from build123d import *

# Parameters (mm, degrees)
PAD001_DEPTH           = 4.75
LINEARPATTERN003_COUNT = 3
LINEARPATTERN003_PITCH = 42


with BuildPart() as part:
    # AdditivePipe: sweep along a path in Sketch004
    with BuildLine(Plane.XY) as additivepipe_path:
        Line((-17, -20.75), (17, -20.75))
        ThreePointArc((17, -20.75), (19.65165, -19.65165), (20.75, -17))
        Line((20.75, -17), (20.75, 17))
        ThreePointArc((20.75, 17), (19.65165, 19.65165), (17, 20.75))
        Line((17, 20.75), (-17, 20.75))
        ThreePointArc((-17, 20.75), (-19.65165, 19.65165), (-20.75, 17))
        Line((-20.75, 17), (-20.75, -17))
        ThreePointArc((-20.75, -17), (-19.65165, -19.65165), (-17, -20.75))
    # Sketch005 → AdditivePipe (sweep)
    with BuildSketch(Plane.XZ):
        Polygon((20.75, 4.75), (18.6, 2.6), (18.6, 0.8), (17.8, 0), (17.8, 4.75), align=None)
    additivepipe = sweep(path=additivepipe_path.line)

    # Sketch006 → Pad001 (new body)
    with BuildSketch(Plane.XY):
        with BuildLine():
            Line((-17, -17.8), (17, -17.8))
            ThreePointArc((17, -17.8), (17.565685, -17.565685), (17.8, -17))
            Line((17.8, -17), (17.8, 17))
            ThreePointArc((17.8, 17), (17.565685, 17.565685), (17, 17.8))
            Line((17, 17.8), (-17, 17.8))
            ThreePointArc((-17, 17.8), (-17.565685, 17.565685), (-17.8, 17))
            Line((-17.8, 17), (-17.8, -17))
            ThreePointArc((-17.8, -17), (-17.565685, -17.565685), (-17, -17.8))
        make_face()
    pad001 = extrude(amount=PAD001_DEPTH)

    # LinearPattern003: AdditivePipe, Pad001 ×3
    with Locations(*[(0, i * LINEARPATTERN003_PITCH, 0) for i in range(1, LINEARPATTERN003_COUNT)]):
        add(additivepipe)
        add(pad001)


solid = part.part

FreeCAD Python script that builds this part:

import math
import FreeCAD as App
import Part
import Sketcher
Q = App.Units.Quantity

doc = App.newDocument("Part")
body = doc.addObject("PartDesign::Body", "Body")
body.AllowCompound = True

# Sketch on XZ plane
sketch1 = body.newObject("Sketcher::SketchObject", "Sketch")
sketch1.AttachmentSupport = (doc.getObject("XZ_Plane"), [""])
sketch1.MapMode = "FlatFace"
sketch1.addGeometry([
    Part.LineSegment(App.Vector(18.6, 2.6, 0), App.Vector(20.8, 4.8, 0)),  # 0
    Part.LineSegment(App.Vector(20.8, 4.8, 0), App.Vector(17.8, 4.8, 0)),  # 1
    Part.LineSegment(App.Vector(17.8, 4.8, 0), App.Vector(17.8, 0, 0)),  # 2
    Part.LineSegment(App.Vector(17.8, 0, 0), App.Vector(18.6, 0.8, 0)),  # 3
    Part.LineSegment(App.Vector(18.6, 0.8, 0), App.Vector(18.6, 2.6, 0)),  # 4
], False)
sketch1.addConstraint([
    Sketcher.Constraint("Coincident", 0, 2, 1, 1),
    Sketcher.Constraint("Coincident", 1, 2, 2, 1),
    Sketcher.Constraint("Coincident", 2, 2, 3, 1),
    Sketcher.Constraint("Coincident", 3, 2, 4, 1),
    Sketcher.Constraint("Coincident", 4, 2, 0, 1),
    Sketcher.Constraint("Horizontal", 1),
    Sketcher.Constraint("Vertical", 2),
    Sketcher.Constraint("Vertical", 4),
    Sketcher.Constraint("PointOnObject", 2, 2, -1),
    Sketcher.Constraint("Parallel", 0, 3),
    Sketcher.Constraint("Angle", 0, Q("45 deg")),
    Sketcher.Constraint("DistanceY", 4, 1, 4, 2, Q("1.8 mm")),
    Sketcher.Constraint("DistanceX", 1, 2, 1, 1, Q("2.95 mm")),
    Sketcher.Constraint("DistanceX", -1, 1, 1, 2, Q("17.8 mm")),
    Sketcher.Constraint("DistanceX", -1, 1, 3, 2, Q("18.6 mm")),
])

# Sketch on XY plane
sketch2 = body.newObject("Sketcher::SketchObject", "Sketch001")
sketch2.AttachmentSupport = (doc.getObject("XY_Plane"), [""])
sketch2.MapMode = "FlatFace"
sketch2.addGeometry([
    Part.LineSegment(App.Vector(-17, -20.8, 0), App.Vector(17, -20.8, 0)),  # 0
    Part.ArcOfCircle(Part.Circle(App.Vector(17, -17, 0), App.Vector(0, 0, 1), 3.8), math.radians(-90), math.radians(0)),  # 1
    Part.LineSegment(App.Vector(20.8, -17, 0), App.Vector(20.8, 17, 0)),  # 2
    Part.ArcOfCircle(Part.Circle(App.Vector(17, 17, 0), App.Vector(0, 0, 1), 3.8), math.radians(0), math.radians(90)),  # 3
    Part.LineSegment(App.Vector(17, 20.8, 0), App.Vector(-17, 20.8, 0)),  # 4
    Part.ArcOfCircle(Part.Circle(App.Vector(-17, 17, 0), App.Vector(0, 0, 1), 3.8), math.radians(90), math.radians(180)),  # 5
    Part.LineSegment(App.Vector(-20.8, 17, 0), App.Vector(-20.8, -17, 0)),  # 6
    Part.ArcOfCircle(Part.Circle(App.Vector(-17, -17, 0), App.Vector(0, 0, 1), 3.8), math.radians(-180), math.radians(-90)),  # 7
], False)
sketch2.addConstraint([
    Sketcher.Constraint("Tangent", 0, 2, 1, 1),
    Sketcher.Constraint("Tangent", 1, 2, 2, 1),
    Sketcher.Constraint("Tangent", 2, 2, 3, 1),
    Sketcher.Constraint("Tangent", 3, 2, 4, 1),
    Sketcher.Constraint("Tangent", 4, 2, 5, 1),
    Sketcher.Constraint("Tangent", 5, 2, 6, 1),
    Sketcher.Constraint("Tangent", 6, 2, 7, 1),
    Sketcher.Constraint("Tangent", 7, 2, 0, 1),
    Sketcher.Constraint("Horizontal", 0),
    Sketcher.Constraint("Vertical", 2),
    Sketcher.Constraint("Horizontal", 4),
    Sketcher.Constraint("Vertical", 6),
    Sketcher.Constraint("Equal", 1, 3),
    Sketcher.Constraint("Equal", 3, 5),
    Sketcher.Constraint("Equal", 5, 7),
    Sketcher.Constraint("Symmetric", 1, 3, 5, 3, -1, 1),
    Sketcher.Constraint("Equal", 4, 2),
    Sketcher.Constraint("DistanceX", 0, 1, 0, 2, Q("34 mm")),
    Sketcher.Constraint("Radius", 1, Q("3.750001 mm")),
])
doc.recompute()

additivepipe = body.newObject("PartDesign::AdditivePipe", "AdditivePipe")
additivepipe.Profile = sketch1
additivepipe.Spine = (sketch2, ["Edge1", "Edge2", "Edge3", "Edge4", "Edge5", "Edge6", "Edge7", "Edge8"])

# Sketch on XY plane
sketch3 = body.newObject("Sketcher::SketchObject", "Sketch002")
sketch3.AttachmentSupport = (doc.getObject("XY_Plane"), [""])
sketch3.MapMode = "FlatFace"
sketch3.addGeometry([
    Part.LineSegment(App.Vector(-17, -17.8, 0), App.Vector(17, -17.8, 0)),  # 0
    Part.ArcOfCircle(Part.Circle(App.Vector(17, -17, 0), App.Vector(0, 0, 1), 0.8), math.radians(-90), math.radians(0)),  # 1
    Part.LineSegment(App.Vector(17.8, -17, 0), App.Vector(17.8, 17, 0)),  # 2
    Part.ArcOfCircle(Part.Circle(App.Vector(17, 17, 0), App.Vector(0, 0, 1), 0.8), math.radians(0), math.radians(90)),  # 3
    Part.LineSegment(App.Vector(17, 17.8, 0), App.Vector(-17, 17.8, 0)),  # 4
    Part.ArcOfCircle(Part.Circle(App.Vector(-17, 17, 0), App.Vector(0, 0, 1), 0.8), math.radians(90), math.radians(180)),  # 5
    Part.LineSegment(App.Vector(-17.8, 17, 0), App.Vector(-17.8, -17, 0)),  # 6
    Part.ArcOfCircle(Part.Circle(App.Vector(-17, -17, 0), App.Vector(0, 0, 1), 0.8), math.radians(-180), math.radians(-90)),  # 7
], False)
sketch3.addConstraint([
    Sketcher.Constraint("Tangent", 0, 2, 1, 1),
    Sketcher.Constraint("Tangent", 1, 2, 2, 1),
    Sketcher.Constraint("Tangent", 2, 2, 3, 1),
    Sketcher.Constraint("Tangent", 3, 2, 4, 1),
    Sketcher.Constraint("Tangent", 4, 2, 5, 1),
    Sketcher.Constraint("Tangent", 5, 2, 6, 1),
    Sketcher.Constraint("Tangent", 6, 2, 7, 1),
    Sketcher.Constraint("Tangent", 7, 2, 0, 1),
    Sketcher.Constraint("Horizontal", 0),
    Sketcher.Constraint("Vertical", 2),
    Sketcher.Constraint("Horizontal", 4),
    Sketcher.Constraint("Vertical", 6),
    Sketcher.Constraint("Equal", 1, 3),
    Sketcher.Constraint("Equal", 3, 5),
    Sketcher.Constraint("Equal", 5, 7),
    Sketcher.Constraint("Symmetric", 1, 3, 5, 3, -1, 1),
    Sketcher.Constraint("Equal", 4, 2),
    Sketcher.Constraint("Radius", 1, Q("0.800001 mm")),
    Sketcher.Constraint("DistanceX", 0, 1, 0, 2, Q("34 mm")),
])
pad1 = body.newObject("PartDesign::Pad", "Pad")
pad1.Profile = sketch3
pad1.Length = 4.75
doc.recompute()

linearpattern = body.newObject("PartDesign::LinearPattern", "LinearPattern")
linearpattern.Originals = [additivepipe, pad1]
linearpattern.Direction = (doc.getObject("Y_Axis"), [""])
linearpattern.Mode = "offset"
linearpattern.Offset = 42
linearpattern.Occurrences = 3
body.Tip = linearpattern

doc.recompute()
